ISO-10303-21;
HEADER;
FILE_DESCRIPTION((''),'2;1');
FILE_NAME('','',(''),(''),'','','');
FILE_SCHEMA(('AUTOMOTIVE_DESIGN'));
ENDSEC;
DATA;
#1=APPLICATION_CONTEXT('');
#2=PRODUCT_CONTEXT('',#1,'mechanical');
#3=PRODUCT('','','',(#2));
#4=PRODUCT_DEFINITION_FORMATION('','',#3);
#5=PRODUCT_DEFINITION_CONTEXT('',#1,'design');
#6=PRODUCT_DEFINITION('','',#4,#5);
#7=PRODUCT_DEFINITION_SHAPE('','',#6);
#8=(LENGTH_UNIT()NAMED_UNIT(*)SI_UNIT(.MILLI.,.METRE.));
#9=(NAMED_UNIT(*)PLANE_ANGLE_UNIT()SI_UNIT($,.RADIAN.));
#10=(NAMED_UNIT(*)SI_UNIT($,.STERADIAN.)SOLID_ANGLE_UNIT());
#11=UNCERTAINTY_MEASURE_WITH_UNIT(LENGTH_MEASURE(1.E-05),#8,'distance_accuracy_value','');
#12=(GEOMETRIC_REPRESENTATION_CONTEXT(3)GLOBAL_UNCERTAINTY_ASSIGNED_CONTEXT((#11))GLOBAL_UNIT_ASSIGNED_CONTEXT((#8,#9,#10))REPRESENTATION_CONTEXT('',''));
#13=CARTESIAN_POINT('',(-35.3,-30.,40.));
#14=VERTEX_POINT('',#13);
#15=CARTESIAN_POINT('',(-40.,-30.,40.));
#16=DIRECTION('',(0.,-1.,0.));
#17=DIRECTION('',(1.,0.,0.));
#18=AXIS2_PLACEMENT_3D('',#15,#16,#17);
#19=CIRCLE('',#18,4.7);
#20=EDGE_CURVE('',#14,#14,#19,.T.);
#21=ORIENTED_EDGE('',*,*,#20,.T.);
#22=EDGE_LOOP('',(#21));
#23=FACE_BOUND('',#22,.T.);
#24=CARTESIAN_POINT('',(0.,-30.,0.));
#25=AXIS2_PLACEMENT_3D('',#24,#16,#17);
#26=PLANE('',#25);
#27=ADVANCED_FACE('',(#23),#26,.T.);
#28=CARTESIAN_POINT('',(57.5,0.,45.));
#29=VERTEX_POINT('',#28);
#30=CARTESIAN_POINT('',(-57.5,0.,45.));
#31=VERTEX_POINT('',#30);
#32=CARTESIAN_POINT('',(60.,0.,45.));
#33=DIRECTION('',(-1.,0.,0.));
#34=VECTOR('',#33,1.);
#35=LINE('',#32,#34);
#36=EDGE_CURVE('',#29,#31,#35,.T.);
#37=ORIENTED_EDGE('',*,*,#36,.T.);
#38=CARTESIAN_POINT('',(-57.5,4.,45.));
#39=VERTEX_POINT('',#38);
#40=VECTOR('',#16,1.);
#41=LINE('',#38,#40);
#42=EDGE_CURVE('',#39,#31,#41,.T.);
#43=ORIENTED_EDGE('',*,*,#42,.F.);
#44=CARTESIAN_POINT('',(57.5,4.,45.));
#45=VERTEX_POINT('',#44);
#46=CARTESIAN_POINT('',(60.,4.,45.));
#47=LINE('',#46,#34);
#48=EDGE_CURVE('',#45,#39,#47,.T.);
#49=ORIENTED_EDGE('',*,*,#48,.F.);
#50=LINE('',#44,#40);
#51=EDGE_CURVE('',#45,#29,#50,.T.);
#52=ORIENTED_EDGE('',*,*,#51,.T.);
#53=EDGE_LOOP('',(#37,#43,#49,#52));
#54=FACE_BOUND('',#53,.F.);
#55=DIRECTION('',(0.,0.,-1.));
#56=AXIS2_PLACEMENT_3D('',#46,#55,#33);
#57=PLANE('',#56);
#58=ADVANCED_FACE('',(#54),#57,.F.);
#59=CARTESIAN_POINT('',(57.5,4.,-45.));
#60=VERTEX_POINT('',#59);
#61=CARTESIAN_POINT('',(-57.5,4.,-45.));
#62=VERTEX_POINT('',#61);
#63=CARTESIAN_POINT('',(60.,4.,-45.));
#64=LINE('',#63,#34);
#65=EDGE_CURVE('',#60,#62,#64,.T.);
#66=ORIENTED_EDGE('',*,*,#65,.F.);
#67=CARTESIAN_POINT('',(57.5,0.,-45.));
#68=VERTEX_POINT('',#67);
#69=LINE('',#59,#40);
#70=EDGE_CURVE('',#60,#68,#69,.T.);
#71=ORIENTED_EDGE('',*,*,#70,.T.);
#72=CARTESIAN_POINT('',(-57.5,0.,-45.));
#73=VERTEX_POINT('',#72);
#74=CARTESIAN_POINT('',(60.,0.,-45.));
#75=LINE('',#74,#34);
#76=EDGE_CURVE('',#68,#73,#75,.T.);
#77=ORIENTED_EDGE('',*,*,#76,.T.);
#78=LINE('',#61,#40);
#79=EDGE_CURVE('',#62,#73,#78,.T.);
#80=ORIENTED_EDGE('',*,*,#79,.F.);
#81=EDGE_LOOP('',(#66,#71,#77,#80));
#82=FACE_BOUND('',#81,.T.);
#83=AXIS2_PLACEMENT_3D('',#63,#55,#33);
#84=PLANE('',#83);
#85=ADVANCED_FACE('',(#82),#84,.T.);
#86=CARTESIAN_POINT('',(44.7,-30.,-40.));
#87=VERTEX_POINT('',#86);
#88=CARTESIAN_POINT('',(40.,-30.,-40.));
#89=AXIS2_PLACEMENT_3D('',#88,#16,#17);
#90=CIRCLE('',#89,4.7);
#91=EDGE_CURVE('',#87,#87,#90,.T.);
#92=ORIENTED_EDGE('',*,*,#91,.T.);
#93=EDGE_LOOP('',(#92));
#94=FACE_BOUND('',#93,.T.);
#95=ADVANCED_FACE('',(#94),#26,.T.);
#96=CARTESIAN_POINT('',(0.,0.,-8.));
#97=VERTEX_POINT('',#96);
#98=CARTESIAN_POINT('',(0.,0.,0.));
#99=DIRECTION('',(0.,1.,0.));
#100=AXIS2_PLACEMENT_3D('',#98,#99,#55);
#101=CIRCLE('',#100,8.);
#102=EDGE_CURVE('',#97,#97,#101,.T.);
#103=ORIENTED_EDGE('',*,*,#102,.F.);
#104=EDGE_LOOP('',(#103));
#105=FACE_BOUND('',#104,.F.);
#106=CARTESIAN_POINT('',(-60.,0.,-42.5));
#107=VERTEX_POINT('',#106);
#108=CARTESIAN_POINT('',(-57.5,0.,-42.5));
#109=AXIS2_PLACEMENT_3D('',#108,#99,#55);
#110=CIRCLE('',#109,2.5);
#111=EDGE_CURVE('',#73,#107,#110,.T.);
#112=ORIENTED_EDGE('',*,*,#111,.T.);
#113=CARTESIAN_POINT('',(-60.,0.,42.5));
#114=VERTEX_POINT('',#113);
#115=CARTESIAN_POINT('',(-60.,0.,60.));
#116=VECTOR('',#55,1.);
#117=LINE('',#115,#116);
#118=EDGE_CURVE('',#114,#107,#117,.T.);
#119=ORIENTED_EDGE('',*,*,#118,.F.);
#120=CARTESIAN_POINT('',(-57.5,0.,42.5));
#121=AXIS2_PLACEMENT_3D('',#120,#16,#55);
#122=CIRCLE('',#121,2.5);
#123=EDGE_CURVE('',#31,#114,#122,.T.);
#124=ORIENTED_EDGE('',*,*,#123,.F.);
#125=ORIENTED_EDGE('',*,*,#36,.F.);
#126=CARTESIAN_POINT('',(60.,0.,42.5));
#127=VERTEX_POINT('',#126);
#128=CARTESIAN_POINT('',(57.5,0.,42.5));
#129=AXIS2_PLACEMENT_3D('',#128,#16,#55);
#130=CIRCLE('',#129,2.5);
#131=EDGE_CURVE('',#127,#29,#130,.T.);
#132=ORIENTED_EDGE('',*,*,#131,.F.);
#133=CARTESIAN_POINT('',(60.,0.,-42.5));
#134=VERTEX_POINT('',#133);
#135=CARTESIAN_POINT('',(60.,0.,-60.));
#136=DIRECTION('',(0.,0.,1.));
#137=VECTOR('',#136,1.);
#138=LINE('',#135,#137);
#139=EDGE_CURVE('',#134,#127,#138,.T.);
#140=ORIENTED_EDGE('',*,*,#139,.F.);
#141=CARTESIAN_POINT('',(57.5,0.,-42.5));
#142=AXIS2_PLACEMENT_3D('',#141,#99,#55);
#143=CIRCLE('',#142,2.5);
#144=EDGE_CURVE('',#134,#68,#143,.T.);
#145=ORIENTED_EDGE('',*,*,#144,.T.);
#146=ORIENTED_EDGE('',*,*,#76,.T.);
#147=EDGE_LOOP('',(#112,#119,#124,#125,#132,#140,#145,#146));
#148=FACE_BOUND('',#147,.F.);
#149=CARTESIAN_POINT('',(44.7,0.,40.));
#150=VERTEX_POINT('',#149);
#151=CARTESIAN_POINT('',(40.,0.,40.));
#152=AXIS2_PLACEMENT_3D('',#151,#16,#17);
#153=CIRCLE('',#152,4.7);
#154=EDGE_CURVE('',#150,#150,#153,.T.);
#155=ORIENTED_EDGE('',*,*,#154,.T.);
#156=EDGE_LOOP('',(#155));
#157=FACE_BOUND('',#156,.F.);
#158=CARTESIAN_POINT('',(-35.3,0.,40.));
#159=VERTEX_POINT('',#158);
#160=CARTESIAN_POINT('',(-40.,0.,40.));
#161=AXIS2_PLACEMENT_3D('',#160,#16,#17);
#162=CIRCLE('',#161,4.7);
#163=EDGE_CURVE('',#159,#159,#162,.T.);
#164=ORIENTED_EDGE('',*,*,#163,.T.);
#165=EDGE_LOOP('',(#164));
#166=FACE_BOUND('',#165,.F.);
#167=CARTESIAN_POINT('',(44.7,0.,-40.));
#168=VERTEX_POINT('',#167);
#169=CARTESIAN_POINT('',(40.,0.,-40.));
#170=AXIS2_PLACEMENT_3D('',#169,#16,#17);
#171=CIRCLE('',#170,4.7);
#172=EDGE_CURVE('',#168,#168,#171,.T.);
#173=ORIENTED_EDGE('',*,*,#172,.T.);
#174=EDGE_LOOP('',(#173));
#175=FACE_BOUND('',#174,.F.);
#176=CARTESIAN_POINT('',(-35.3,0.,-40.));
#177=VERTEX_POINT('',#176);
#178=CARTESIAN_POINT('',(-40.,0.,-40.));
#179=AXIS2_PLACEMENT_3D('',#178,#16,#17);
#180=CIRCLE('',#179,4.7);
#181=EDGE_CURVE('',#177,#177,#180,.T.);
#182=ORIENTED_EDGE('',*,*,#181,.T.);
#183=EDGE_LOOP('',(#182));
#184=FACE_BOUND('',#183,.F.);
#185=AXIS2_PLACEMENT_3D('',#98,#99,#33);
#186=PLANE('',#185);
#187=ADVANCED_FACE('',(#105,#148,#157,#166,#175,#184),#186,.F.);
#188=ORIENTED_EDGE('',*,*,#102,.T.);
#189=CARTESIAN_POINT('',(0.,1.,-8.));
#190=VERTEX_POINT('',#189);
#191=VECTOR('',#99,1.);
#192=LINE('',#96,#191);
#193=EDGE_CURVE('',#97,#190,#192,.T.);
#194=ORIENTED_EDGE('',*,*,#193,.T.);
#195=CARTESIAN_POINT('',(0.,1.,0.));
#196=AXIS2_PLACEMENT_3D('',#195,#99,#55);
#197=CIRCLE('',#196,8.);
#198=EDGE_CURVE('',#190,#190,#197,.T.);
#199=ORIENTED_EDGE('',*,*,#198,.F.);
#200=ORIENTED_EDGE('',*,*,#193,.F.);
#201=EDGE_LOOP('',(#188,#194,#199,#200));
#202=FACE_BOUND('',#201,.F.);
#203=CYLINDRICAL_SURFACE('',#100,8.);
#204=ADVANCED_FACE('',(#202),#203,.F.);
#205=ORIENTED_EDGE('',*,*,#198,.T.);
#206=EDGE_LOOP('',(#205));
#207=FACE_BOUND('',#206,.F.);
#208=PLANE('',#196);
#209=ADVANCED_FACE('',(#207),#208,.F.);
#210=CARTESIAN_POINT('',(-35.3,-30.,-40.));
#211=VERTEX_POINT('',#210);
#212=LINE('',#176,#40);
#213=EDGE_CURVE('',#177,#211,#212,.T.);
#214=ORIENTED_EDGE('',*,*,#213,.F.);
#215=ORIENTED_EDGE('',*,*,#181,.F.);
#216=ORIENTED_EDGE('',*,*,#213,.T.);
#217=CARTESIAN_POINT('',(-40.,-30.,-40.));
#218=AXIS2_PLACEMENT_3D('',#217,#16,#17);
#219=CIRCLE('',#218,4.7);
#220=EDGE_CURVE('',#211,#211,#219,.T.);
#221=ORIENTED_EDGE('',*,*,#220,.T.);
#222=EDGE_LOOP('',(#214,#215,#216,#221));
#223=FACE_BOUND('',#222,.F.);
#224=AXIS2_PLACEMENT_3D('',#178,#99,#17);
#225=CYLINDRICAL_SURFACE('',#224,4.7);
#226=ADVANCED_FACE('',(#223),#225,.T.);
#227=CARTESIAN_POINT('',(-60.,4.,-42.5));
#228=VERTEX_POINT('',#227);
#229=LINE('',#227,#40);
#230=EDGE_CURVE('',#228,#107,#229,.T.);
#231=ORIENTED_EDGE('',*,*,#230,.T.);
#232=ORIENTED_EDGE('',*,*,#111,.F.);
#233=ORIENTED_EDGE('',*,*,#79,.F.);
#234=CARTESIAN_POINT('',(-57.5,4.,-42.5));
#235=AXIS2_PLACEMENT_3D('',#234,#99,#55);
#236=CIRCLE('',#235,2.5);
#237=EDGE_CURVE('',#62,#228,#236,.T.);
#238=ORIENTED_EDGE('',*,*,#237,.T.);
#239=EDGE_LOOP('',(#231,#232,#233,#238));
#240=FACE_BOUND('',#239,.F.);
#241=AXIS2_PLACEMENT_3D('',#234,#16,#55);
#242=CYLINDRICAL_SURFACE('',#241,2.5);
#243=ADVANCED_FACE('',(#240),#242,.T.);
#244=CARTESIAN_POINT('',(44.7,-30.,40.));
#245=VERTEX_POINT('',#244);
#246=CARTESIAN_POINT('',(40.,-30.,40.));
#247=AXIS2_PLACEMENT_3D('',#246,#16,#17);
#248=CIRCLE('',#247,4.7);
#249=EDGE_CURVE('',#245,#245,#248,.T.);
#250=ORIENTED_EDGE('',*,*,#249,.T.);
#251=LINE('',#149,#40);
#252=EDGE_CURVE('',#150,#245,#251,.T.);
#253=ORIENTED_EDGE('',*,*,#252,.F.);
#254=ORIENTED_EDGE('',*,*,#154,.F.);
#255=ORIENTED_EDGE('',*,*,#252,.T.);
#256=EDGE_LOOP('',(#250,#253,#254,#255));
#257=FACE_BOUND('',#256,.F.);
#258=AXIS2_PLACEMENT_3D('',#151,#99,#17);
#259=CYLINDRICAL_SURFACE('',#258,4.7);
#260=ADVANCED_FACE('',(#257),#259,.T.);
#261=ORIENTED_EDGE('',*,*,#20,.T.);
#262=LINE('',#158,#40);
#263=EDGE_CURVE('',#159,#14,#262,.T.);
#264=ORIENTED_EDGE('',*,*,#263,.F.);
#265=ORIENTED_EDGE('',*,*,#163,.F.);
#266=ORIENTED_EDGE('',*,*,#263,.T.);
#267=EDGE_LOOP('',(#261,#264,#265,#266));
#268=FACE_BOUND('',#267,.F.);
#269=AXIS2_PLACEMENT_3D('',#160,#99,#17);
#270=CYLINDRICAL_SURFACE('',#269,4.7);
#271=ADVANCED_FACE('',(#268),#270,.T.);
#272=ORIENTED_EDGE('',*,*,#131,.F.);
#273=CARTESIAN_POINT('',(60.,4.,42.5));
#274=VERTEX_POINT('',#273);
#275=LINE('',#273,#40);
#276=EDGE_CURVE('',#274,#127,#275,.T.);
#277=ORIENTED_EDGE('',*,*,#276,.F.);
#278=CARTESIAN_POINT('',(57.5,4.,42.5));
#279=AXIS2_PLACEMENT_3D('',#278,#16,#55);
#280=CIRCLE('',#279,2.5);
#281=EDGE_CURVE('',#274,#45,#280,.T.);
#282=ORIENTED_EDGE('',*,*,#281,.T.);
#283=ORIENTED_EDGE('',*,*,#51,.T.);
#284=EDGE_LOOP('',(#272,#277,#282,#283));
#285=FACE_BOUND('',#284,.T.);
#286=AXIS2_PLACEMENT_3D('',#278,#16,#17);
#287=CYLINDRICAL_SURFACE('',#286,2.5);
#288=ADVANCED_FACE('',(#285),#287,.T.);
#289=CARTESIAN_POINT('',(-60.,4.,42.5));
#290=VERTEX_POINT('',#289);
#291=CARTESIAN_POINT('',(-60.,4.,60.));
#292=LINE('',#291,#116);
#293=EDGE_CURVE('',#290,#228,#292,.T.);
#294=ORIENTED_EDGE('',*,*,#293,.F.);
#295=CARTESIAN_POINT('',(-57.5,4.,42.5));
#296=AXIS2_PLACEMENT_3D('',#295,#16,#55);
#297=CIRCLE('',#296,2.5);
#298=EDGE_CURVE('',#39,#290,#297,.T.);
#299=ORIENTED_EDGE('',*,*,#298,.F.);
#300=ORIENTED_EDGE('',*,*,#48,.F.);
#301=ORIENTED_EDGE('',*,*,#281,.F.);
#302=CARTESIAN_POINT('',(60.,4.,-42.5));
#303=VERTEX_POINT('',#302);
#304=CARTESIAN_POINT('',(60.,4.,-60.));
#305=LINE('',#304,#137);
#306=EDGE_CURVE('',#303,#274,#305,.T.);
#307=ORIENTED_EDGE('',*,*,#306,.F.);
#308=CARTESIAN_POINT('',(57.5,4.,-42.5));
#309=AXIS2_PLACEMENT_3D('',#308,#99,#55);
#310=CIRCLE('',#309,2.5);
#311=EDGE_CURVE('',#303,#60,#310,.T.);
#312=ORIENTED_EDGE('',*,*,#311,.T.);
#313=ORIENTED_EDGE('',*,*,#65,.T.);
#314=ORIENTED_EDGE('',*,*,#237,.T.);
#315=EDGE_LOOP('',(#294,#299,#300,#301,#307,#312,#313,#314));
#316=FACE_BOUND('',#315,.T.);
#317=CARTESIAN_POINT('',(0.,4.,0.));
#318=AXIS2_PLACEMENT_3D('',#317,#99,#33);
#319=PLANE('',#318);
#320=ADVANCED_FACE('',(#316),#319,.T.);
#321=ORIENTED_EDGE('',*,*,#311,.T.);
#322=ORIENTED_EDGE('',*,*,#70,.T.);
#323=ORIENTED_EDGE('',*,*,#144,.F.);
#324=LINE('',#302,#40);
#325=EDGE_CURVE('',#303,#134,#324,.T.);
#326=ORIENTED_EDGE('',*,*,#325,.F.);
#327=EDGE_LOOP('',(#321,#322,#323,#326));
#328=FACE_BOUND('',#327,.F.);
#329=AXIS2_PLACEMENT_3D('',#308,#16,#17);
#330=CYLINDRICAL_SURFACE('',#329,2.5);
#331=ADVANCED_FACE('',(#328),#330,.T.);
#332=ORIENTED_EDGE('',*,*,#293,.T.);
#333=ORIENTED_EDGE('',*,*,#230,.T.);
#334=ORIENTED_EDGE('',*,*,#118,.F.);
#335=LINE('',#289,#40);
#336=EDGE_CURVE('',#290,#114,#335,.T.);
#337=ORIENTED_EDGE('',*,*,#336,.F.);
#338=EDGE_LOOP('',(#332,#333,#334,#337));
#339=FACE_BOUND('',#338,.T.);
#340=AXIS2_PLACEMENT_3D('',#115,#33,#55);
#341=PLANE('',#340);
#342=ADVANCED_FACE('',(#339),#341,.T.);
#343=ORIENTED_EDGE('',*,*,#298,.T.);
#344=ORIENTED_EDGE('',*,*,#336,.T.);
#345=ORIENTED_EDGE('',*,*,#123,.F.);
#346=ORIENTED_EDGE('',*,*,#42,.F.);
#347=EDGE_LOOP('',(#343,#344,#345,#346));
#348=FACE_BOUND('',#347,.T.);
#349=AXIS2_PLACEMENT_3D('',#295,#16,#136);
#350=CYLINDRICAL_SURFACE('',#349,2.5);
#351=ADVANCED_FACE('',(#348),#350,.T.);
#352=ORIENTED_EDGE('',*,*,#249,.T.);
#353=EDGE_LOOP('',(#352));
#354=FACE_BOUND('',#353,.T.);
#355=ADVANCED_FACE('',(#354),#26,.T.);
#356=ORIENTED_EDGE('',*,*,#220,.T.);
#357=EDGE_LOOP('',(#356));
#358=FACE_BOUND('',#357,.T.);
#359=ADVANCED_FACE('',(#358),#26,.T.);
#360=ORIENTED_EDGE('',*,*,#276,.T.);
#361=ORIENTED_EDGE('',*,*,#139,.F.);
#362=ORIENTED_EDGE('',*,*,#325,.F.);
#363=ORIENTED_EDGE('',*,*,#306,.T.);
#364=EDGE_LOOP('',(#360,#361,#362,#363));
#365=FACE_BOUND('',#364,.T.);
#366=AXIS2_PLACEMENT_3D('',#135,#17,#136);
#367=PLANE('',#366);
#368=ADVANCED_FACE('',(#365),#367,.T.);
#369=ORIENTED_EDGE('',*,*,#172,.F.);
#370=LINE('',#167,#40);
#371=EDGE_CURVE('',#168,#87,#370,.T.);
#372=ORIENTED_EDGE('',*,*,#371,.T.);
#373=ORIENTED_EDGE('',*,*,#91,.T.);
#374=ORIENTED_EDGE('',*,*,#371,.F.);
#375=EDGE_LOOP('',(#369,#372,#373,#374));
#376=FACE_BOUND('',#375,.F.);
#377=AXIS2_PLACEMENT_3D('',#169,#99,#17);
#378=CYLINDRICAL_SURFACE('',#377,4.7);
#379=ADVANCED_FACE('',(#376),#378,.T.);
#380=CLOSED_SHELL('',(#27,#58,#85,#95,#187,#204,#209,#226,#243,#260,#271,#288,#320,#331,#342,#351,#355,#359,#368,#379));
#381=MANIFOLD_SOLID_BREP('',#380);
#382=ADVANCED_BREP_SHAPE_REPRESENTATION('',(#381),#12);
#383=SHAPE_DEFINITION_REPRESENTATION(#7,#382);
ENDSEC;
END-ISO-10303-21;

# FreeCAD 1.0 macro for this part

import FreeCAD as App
import Part
import Sketcher
Q = App.Units.Quantity


def edges_at(feature, points):
    """Names of the edges that pass closest to the given points."""
    edges = feature.Shape.Edges
    near = lambda p: min(range(len(edges)), key=lambda i: edges[i].distToShape(Part.Vertex(*p))[0])
    return sorted({f"Edge{near(p) + 1}" for p in points})


def add_polygon(sketch, points):
    """Adds a closed chain of lines whose ends are joined by coincident constraints."""
    first, n = sketch.GeometryCount, len(points)
    for a, b in zip(points, points[1:] + points[:1]):
        sketch.addGeometry(Part.LineSegment(App.Vector(*a, 0), App.Vector(*b, 0)), False)
    for i in range(n):
        sketch.addConstraint(Sketcher.Constraint("Coincident", first + i, 2, first + (i + 1) % n, 1))

doc = App.newDocument("Part")
body = doc.addObject("PartDesign::Body", "Body")

# Sketch on XZ plane
sketch1 = body.newObject("Sketcher::SketchObject", "Sketch")
sketch1.AttachmentSupport = (doc.getObject("XZ_Plane"), [""])
sketch1.MapMode = "FlatFace"
add_polygon(sketch1, [(-60, 60), (60, 60), (60, -60), (-60, -60)])  # lines 0-3
sketch1.addConstraint([
    Sketcher.Constraint("Horizontal", 0),
    Sketcher.Constraint("Vertical", 1),
    Sketcher.Constraint("Horizontal", 2),
    Sketcher.Constraint("Vertical", 3),
    Sketcher.Constraint("Symmetric", 0, 2, 2, 2, -1, 1),
    Sketcher.Constraint("Equal", 2, 1),
    Sketcher.Constraint("DistanceX", 0, 1, 0, 2, Q("120 mm")),
])
pad1 = body.newObject("PartDesign::Pad", "Pad")
pad1.Profile = sketch1
pad1.Length = 4
pad1.Reversed = True

# Sketch on XZ plane
sketch2 = body.newObject("Sketcher::SketchObject", "Sketch001")
sketch2.AttachmentSupport = (doc.getObject("XZ_Plane"), [""])
sketch2.MapMode = "FlatFace"
sketch2.addGeometry([
    Part.Circle(App.Vector(40, 40, 0), App.Vector(0, 0, 1), 4.7),
    Part.Circle(App.Vector(-40, 40, 0), App.Vector(0, 0, 1), 4.7),
    Part.Circle(App.Vector(-40, -40, 0), App.Vector(0, 0, 1), 4.7),
    Part.Circle(App.Vector(40, -40, 0), App.Vector(0, 0, 1), 4.7),
], False)
sketch2.addConstraint([
    Sketcher.Constraint("Equal", 0, 1),
    Sketcher.Constraint("Equal", 1, 2),
    Sketcher.Constraint("Equal", 2, 3),
    Sketcher.Constraint("Symmetric", 0, 3, 2, 3, -1, 1),
    Sketcher.Constraint("Symmetric", 1, 3, 3, 3, -1, 1),
    Sketcher.Constraint("Symmetric", 0, 3, 1, 3, -2),
    Sketcher.Constraint("Diameter", 0, Q("9.4 mm")),
    Sketcher.Constraint("DistanceX", 1, 3, 0, 3, Q("80 mm")),
    Sketcher.Constraint("DistanceY", 2, 3, 1, 3, Q("80 mm")),
])
pad2 = body.newObject("PartDesign::Pad", "Pad001")
pad2.Profile = sketch2
pad2.Length = 30

# Sketch on XZ plane
sketch3 = body.newObject("Sketcher::SketchObject", "Sketch002")
sketch3.AttachmentSupport = (doc.getObject("XZ_Plane"), [""])
sketch3.MapMode = "FlatFace"
sketch3.addGeometry(Part.Circle(App.Vector(0, 0, 0), App.Vector(0, 0, 1), 8), False)
sketch3.addConstraint([
    Sketcher.Constraint("Coincident", 0, 3, -1, 1),
    Sketcher.Constraint("Diameter", 0, Q("16 mm")),
])
doc.recompute()
hole = body.newObject("PartDesign::Hole", "Hole")
hole.Profile = sketch3
hole.ThreadType = "None"
hole.Diameter = 16
hole.DepthType = "Dimension"
hole.Depth = 1
hole.DrillPoint = "Flat"

# Sketch on XZ plane
sketch4 = body.newObject("Sketcher::SketchObject", "Sketch003")
sketch4.AttachmentSupport = (doc.getObject("XZ_Plane"), [""])
sketch4.MapMode = "FlatFace"
sketch4.AttachmentOffset = App.Placement(App.Vector(0, 0, -4), App.Rotation())
add_polygon(sketch4, [(-60, 60), (60, 60), (60, 45), (-60, 45)])  # lines 0-3
add_polygon(sketch4, [(-60, -45), (60, -45), (60, -60), (-60, -60)])  # lines 4-7
sketch4.addConstraint([
    Sketcher.Constraint("Horizontal", 0),
    Sketcher.Constraint("Vertical", 1),
    Sketcher.Constraint("Horizontal", 2),
    Sketcher.Constraint("Vertical", 3),
    Sketcher.Constraint("Horizontal", 4),
    Sketcher.Constraint("Vertical", 5),
    Sketcher.Constraint("Horizontal", 6),
    Sketcher.Constraint("Vertical", 7),
    Sketcher.Constraint("Symmetric", 2, 2, 4, 2, -1, 1),
    Sketcher.Constraint("Symmetric", 0, 2, 6, 2, -1, 1),
    Sketcher.Constraint("Vertical", 1, 2, 4, 2),
    Sketcher.Constraint("DistanceY", 1, 2, 1, 1, Q("15 mm")),
    Sketcher.Constraint("DistanceX", 0, 1, 0, 2, Q("120 mm")),
    Sketcher.Constraint("DistanceY", -1, 1, 0, 2, Q("60 mm")),
])
pocket1 = body.newObject("PartDesign::Pocket", "Pocket")
pocket1.Profile = sketch4
pocket1.Length = 4
pocket1.Reversed = True
doc.recompute()

fillet = body.newObject("PartDesign::Fillet", "Fillet")
fillet.Base = (pocket1, edges_at(pocket1, [
    (60, 2, 45),
    (60, 2, -45),
    (-60, 2, 45),
    (-60, 2, -45),
]))
fillet.Radius = 2.5

doc.recompute()
